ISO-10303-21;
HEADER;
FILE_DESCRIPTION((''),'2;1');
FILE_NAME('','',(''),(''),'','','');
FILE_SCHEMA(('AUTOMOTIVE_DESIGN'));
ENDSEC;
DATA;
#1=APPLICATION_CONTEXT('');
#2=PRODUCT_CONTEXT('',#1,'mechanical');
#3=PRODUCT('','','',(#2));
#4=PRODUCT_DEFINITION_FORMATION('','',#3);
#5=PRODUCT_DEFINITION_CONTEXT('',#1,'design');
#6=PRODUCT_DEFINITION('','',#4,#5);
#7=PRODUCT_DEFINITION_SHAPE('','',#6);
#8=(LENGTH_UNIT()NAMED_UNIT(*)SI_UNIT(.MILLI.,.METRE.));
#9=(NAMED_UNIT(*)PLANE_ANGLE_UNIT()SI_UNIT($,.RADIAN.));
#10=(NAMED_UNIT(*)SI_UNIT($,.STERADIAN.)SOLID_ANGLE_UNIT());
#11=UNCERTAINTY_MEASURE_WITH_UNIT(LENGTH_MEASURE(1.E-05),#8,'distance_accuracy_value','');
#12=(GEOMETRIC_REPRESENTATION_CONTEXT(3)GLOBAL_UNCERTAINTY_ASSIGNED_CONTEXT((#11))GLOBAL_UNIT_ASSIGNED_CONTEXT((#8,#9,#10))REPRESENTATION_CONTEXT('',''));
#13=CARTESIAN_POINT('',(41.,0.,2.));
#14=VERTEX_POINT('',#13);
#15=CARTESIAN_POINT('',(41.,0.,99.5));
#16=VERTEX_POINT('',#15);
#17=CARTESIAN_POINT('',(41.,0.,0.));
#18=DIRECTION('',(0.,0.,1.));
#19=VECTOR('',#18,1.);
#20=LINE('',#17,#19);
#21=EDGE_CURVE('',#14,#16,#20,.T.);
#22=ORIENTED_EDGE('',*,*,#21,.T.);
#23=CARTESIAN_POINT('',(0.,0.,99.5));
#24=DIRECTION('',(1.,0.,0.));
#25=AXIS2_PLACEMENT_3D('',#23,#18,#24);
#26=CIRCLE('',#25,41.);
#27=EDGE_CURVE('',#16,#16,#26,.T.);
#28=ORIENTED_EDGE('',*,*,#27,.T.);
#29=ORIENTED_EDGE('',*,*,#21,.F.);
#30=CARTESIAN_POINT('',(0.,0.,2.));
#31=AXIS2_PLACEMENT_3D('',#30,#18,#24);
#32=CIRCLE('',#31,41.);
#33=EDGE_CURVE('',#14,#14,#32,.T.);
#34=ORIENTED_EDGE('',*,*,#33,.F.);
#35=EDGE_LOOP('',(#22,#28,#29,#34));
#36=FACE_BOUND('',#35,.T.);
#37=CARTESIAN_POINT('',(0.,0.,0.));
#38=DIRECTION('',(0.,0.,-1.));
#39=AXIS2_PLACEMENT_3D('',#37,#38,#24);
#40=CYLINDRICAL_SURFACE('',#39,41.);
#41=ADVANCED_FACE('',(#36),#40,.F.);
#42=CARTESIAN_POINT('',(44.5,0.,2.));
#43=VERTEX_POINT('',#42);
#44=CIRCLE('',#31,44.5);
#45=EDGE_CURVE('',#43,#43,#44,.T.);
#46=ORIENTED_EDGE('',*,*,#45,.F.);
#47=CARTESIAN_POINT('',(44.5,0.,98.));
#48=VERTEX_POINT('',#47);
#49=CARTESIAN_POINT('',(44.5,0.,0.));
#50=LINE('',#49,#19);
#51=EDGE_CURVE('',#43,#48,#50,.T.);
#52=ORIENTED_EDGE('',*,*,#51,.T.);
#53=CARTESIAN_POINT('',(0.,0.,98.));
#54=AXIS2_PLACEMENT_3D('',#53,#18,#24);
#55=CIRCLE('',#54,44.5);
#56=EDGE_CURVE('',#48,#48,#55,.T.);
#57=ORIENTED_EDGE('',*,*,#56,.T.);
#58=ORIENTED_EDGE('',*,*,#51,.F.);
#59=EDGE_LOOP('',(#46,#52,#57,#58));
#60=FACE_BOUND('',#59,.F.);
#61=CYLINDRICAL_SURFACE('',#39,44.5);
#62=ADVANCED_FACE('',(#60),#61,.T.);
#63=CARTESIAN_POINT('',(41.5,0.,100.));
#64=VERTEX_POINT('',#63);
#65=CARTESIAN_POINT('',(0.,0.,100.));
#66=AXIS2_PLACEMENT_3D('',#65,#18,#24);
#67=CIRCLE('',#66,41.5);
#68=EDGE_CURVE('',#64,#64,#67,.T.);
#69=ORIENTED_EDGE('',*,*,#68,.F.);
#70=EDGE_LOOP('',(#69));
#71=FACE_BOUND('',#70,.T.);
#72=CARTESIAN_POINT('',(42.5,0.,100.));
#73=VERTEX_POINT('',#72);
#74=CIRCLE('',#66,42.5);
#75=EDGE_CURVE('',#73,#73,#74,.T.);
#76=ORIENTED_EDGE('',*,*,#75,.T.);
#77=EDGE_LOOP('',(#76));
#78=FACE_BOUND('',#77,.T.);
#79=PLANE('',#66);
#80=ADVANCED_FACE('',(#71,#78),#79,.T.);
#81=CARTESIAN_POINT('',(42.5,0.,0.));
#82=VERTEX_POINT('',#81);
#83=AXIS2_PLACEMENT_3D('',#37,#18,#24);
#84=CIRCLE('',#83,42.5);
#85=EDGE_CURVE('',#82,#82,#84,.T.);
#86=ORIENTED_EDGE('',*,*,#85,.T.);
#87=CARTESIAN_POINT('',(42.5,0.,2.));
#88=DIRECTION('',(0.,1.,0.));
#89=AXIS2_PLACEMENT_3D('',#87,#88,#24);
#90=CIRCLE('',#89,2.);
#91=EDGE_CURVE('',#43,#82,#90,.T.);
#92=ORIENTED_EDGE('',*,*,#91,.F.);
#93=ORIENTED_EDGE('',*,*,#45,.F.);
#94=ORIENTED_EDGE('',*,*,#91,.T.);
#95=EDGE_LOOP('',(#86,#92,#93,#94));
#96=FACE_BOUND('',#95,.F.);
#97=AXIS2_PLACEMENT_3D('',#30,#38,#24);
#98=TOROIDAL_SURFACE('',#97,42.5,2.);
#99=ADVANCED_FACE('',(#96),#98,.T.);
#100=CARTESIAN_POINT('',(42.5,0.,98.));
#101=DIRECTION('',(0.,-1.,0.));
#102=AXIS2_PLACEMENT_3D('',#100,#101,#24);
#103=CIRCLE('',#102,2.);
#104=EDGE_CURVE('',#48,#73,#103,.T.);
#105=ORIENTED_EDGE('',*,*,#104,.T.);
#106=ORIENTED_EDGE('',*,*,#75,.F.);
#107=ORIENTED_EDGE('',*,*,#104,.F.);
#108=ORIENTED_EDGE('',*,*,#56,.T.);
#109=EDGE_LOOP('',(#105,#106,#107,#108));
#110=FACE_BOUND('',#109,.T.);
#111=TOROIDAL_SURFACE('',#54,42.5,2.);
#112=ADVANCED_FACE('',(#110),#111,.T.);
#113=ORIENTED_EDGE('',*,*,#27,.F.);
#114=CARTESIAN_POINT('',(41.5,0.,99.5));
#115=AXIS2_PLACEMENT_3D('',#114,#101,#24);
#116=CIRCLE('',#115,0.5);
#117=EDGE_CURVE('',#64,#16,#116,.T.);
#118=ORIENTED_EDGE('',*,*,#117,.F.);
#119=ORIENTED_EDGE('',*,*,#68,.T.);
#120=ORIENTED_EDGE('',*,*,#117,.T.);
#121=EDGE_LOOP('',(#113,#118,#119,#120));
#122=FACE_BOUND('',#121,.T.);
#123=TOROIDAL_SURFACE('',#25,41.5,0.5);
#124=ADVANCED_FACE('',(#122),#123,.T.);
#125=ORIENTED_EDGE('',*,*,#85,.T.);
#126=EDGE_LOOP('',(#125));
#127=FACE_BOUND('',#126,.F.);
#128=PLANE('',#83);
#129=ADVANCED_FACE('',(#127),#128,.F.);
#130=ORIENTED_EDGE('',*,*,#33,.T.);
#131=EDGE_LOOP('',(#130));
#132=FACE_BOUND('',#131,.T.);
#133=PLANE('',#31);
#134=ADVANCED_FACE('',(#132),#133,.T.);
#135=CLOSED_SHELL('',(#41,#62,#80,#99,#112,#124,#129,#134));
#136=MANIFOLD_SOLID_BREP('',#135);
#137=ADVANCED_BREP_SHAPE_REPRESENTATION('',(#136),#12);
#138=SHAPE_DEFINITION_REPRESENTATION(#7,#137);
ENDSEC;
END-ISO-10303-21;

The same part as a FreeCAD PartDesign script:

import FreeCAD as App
import Part
import Sketcher

V = App.Vector
Q = App.Units.Quantity


def edges_at(feature, points):
    """Names of the edges that pass closest to the given points."""
    edges = feature.Shape.Edges
    near = lambda p: min(range(len(edges)), key=lambda i: edges[i].distToShape(Part.Vertex(*p))[0])
    return sorted({f"Edge{near(p) + 1}" for p in points})

doc = App.newDocument("Part")
body = doc.addObject("PartDesign::Body", "Body")

# Sketch on XY plane
sketch1 = body.newObject("Sketcher::SketchObject", "Sketch")
sketch1.AttachmentSupport = (doc.getObject("XY_Plane"), [""])
sketch1.MapMode = "FlatFace"
sketch1.addGeometry(Part.Circle(V(0, 0, 0), V(0, 0, 1), 44), False)
sketch1.addGeometry(Part.Circle(V(0, 0, 0), V(0, 0, 1), 41), False)
sketch1.addConstraint(Sketcher.Constraint("Coincident", 0, 3, -1, 1))
sketch1.addConstraint(Sketcher.Constraint("Coincident", 1, 3, -1, 1))
sketch1.addConstraint(Sketcher.Constraint("Diameter", 0, Q("89 mm")))
sketch1.addConstraint(Sketcher.Constraint("Diameter", 1, Q("82 mm")))
pad1 = body.newObject("PartDesign::Pad", "Pad")
pad1.Profile = sketch1
pad1.Length = 100
doc.recompute()

fillet = body.newObject("PartDesign::Fillet", "Fillet")
fillet.Base = (pad1, edges_at(pad1, [(-44.5, 0, 100), (-44.5, 0, 0)]))
fillet.Radius = 2
doc.recompute()

fillet2 = body.newObject("PartDesign::Fillet", "Fillet001")
fillet2.Base = (fillet, edges_at(fillet, [(-41, 0, 100)]))
fillet2.Radius = 0.5

# Sketch on XY plane
sketch2 = body.newObject("Sketcher::SketchObject", "Sketch001")
sketch2.AttachmentSupport = (doc.getObject("XY_Plane"), [""])
sketch2.MapMode = "FlatFace"
sketch2.addGeometry(Part.Circle(V(0, 0, 0), V(0, 0, 1), 41), False)
sketch2.addConstraint(Sketcher.Constraint("Coincident", 0, 3, -1, 1))
sketch2.addConstraint(Sketcher.Constraint("Diameter", 0, Q("82 mm")))
pad2 = body.newObject("PartDesign::Pad", "Pad001")
pad2.Profile = sketch2
pad2.Length = 2

doc.recompute()
